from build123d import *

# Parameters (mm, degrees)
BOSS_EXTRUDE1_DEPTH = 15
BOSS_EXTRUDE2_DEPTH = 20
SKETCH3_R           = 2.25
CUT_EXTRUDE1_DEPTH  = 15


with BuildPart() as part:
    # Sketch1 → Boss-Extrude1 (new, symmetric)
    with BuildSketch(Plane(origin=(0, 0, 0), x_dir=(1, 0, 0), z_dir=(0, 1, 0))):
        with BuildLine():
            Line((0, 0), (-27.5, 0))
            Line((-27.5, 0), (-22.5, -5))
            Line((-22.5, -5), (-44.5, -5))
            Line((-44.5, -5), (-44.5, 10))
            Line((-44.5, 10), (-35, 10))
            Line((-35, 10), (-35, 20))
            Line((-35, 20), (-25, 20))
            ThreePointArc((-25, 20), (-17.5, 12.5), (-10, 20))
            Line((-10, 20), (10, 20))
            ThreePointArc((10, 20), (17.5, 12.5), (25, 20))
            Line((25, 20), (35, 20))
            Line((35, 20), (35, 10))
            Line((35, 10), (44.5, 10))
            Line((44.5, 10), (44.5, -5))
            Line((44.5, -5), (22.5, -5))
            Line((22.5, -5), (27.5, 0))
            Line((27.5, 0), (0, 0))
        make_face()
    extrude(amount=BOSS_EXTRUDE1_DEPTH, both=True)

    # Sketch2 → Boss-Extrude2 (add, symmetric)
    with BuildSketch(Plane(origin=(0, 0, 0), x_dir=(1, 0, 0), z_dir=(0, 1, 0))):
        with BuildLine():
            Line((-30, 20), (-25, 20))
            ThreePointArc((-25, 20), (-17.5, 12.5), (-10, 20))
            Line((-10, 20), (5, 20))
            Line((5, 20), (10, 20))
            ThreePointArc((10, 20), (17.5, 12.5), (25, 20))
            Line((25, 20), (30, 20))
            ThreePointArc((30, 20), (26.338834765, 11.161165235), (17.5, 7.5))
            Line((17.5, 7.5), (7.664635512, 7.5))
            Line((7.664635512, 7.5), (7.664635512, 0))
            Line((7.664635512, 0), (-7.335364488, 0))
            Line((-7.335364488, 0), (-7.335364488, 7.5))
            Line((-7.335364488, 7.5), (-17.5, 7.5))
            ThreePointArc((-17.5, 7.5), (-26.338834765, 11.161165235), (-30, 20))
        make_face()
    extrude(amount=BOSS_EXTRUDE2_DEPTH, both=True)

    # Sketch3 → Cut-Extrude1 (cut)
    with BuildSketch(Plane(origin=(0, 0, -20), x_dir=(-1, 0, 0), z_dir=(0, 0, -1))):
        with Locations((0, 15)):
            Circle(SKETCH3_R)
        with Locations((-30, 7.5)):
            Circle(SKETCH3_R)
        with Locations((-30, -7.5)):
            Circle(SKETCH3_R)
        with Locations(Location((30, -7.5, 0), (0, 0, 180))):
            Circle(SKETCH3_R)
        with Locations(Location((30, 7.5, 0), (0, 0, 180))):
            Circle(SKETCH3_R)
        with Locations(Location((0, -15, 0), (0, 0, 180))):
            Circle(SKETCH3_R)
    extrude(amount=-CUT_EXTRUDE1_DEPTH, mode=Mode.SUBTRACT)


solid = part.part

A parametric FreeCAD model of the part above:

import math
import FreeCAD as App
import Part
import Sketcher

V = App.Vector

doc = App.newDocument("Part")
body = doc.addObject("PartDesign::Body", "Body")

# Sketch on XZ plane
sketch1 = doc.addObject("Sketcher::SketchObject", "Sketch")
body.addObject(sketch1)
sketch1.AttachmentSupport = (doc.XZ_Plane, [""])
sketch1.MapMode = "FlatFace"
sketch1.addGeometry([
    Part.LineSegment(V(-22, 5, 0), V(-28, 0, 0)),  # 0
    Part.LineSegment(V(-28, 0, 0), V(28, 0, 0)),  # 1
    Part.LineSegment(V(28, 0, 0), V(22, 5, 0)),  # 2
    Part.LineSegment(V(22, 5, 0), V(44, 5, 0)),  # 3
    Part.LineSegment(V(44, 5, 0), V(44, -10, 0)),  # 4
    Part.LineSegment(V(44, -10, 0), V(35, -10, 0)),  # 5
    Part.LineSegment(V(35, -10, 0), V(35, -20, 0)),  # 6
    Part.LineSegment(V(35, -20, 0), V(25, -20, 0)),  # 7
    Part.ArcOfCircle(Part.Circle(V(18, -20, 0), V(0, 0, 1), 8), math.radians(0), math.radians(180)),  # 8
    Part.LineSegment(V(10, -20, 0), V(-10, -20, 0)),  # 9
    Part.ArcOfCircle(Part.Circle(V(-18, -20, 0), V(0, 0, 1), 8), math.radians(0), math.radians(180)),  # 10
    Part.LineSegment(V(-25, -20, 0), V(-35, -20, 0)),  # 11
    Part.LineSegment(V(-35, -20, 0), V(-35, -10, 0)),  # 12
    Part.LineSegment(V(-35, -10, 0), V(-44, -10, 0)),  # 13
    Part.LineSegment(V(-44, -10, 0), V(-44, 5, 0)),  # 14
    Part.LineSegment(V(-44, 5, 0), V(-22, 5, 0)),  # 15
], False)
sketch1.addConstraint([
    Sketcher.Constraint("Coincident", 0, 2, 1, 1),
    Sketcher.Constraint("Coincident", 1, 2, 2, 1),
    Sketcher.Constraint("Coincident", 2, 2, 3, 1),
    Sketcher.Constraint("Coincident", 3, 2, 4, 1),
    Sketcher.Constraint("Coincident", 4, 2, 5, 1),
    Sketcher.Constraint("Coincident", 5, 2, 6, 1),
    Sketcher.Constraint("Coincident", 6, 2, 7, 1),
    Sketcher.Constraint("Coincident", 7, 2, 8, 1),
    Sketcher.Constraint("Coincident", 8, 2, 9, 1),
    Sketcher.Constraint("Coincident", 9, 2, 10, 1),
    Sketcher.Constraint("Coincident", 10, 2, 11, 1),
    Sketcher.Constraint("Coincident", 11, 2, 12, 1),
    Sketcher.Constraint("Coincident", 12, 2, 13, 1),
    Sketcher.Constraint("Coincident", 13, 2, 14, 1),
    Sketcher.Constraint("Coincident", 14, 2, 15, 1),
    Sketcher.Constraint("Coincident", 15, 2, 0, 1),
    Sketcher.Constraint("Horizontal", 1),
    Sketcher.Constraint("Horizontal", 3),
    Sketcher.Constraint("Vertical", 4),
    Sketcher.Constraint("Horizontal", 5),
    Sketcher.Constraint("Vertical", 6),
    Sketcher.Constraint("Horizontal", 7),
    Sketcher.Constraint("Horizontal", 9),
    Sketcher.Constraint("Horizontal", 11),
    Sketcher.Constraint("Vertical", 12),
    Sketcher.Constraint("Horizontal", 13),
    Sketcher.Constraint("Vertical", 14),
    Sketcher.Constraint("Horizontal", 15),
    Sketcher.Constraint("Equal", 8, 10),
    Sketcher.Constraint("Symmetric", 0, 2, 1, 2, -1, 1),
    Sketcher.Constraint("Symmetric", 8, 3, 10, 3, -2),
    Sketcher.Constraint("Symmetric", 6, 2, 11, 2, -2),
    Sketcher.Constraint("Symmetric", 4, 2, 13, 2, -2),
    Sketcher.Constraint("Symmetric", 2, 2, 15, 2, -2),
    Sketcher.Constraint("Perpendicular", 0, 2),
    Sketcher.Constraint("Horizontal", 10, 3, 6, 2),
    Sketcher.Constraint("Horizontal", 7, 2, 8, 2),
    Sketcher.Constraint("Equal", 11, 6),
    Sketcher.Constraint("Radius", 8, 7.5),
    Sketcher.Constraint("DistanceX", 1, 1, 1, 2, 55.0),
    Sketcher.Constraint("DistanceX", 3, 1, 3, 2, 22.0),
    Sketcher.Constraint("DistanceX", 7, 2, 7, 1, 10.0),
    Sketcher.Constraint("DistanceX", 9, 2, 9, 1, 20.0),
    Sketcher.Constraint("DistanceY", 4, 2, 4, 1, 15.0),
    Sketcher.Constraint("DistanceX", 5, 2, 5, 1, 9.5),
])
pad1 = doc.addObject("PartDesign::Pad", "Pad")
body.addObject(pad1)
pad1.Profile = sketch1
pad1.Length = 30
pad1.Midplane = True

# Sketch on XZ plane
sketch2 = doc.addObject("Sketcher::SketchObject", "Sketch001")
body.addObject(sketch2)
sketch2.AttachmentSupport = (doc.XZ_Plane, [""])
sketch2.MapMode = "FlatFace"
sketch2.addGeometry([
    Part.LineSegment(V(-25, -20, 0), V(-30, -20, 0)),  # 0
    Part.ArcOfCircle(Part.Circle(V(-18, -20, 0), V(0, 0, 1), 12), math.radians(90), math.radians(180)),  # 1
    Part.LineSegment(V(-18, -8, 0), V(-7, -8, 0)),  # 2
    Part.LineSegment(V(-7, -8, 0), V(-7, 0, 0)),  # 3
    Part.LineSegment(V(-7, 0, 0), V(8, 0, 0)),  # 4
    Part.LineSegment(V(8, 0, 0), V(8, -8, 0)),  # 5
    Part.LineSegment(V(8, -8, 0), V(18, -8, 0)),  # 6
    Part.ArcOfCircle(Part.Circle(V(18, -20, 0), V(0, 0, 1), 12), math.radians(0), math.radians(90)),  # 7
    Part.LineSegment(V(30, -20, 0), V(25, -20, 0)),  # 8
    Part.ArcOfCircle(Part.Circle(V(18, -20, 0), V(0, 0, 1), 8), math.radians(0), math.radians(180)),  # 9
    Part.LineSegment(V(10, -20, 0), V(-10, -20, 0)),  # 10
    Part.ArcOfCircle(Part.Circle(V(-18, -20, 0), V(0, 0, 1), 8), math.radians(0), math.radians(180)),  # 11
], False)
sketch2.addConstraint([
    Sketcher.Constraint("Coincident", 0, 2, 1, 2),
    Sketcher.Constraint("Tangent", 1, 1, 2, 1),
    Sketcher.Constraint("Coincident", 2, 2, 3, 1),
    Sketcher.Constraint("Coincident", 3, 2, 4, 1),
    Sketcher.Constraint("Coincident", 4, 2, 5, 1),
    Sketcher.Constraint("Coincident", 5, 2, 6, 1),
    Sketcher.Constraint("Tangent", 6, 2, 7, 2),
    Sketcher.Constraint("Coincident", 7, 1, 8, 1),
    Sketcher.Constraint("Coincident", 8, 2, 9, 1),
    Sketcher.Constraint("Coincident", 9, 2, 10, 1),
    Sketcher.Constraint("Coincident", 10, 2, 11, 1),
    Sketcher.Constraint("Coincident", 11, 2, 0, 1),
    Sketcher.Constraint("Horizontal", 0),
    Sketcher.Constraint("Horizontal", 2),
    Sketcher.Constraint("Vertical", 3),
    Sketcher.Constraint("Horizontal", 4),
    Sketcher.Constraint("Vertical", 5),
    Sketcher.Constraint("Horizontal", 6),
    Sketcher.Constraint("Horizontal", 8),
    Sketcher.Constraint("Horizontal", 10),
    Sketcher.Constraint("Coincident", 9, 3, 7, 3),
    Sketcher.Constraint("Coincident", 11, 3, 1, 3),
    Sketcher.Constraint("Equal", 1, 7),
    Sketcher.Constraint("Equal", 9, 11),
    Sketcher.Constraint("Symmetric", 1, 3, 7, 3, -2),
    Sketcher.Constraint("PointOnObject", 3, 2, -1),
    Sketcher.Constraint("Horizontal", 11, 3, 0, 2),
    Sketcher.Constraint("Horizontal", 0, 2, 7, 1),
    Sketcher.Constraint("Horizontal", 8, 2, 9, 2),
    Sketcher.Constraint("Radius", 1, 12.5),
    Sketcher.Constraint("Radius", 9, 7.5),
    Sketcher.Constraint("DistanceX", 4, 1, 4, 2, 15.0),
    Sketcher.Constraint("DistanceX", 10, 2, 10, 1, 20.0),
    Sketcher.Constraint("DistanceY", 3, 1, 3, 2, 7.5),
    Sketcher.Constraint("DistanceX", 2, 1, 2, 2, 10.164636),
])
pad2 = doc.addObject("PartDesign::Pad", "Pad001")
body.addObject(pad2)
pad2.Profile = sketch2
pad2.Length = 40
pad2.Midplane = True

# Sketch on XY plane
sketch3 = doc.addObject("Sketcher::SketchObject", "Sketch002")
body.addObject(sketch3)
sketch3.AttachmentSupport = (doc.XY_Plane, [""])
sketch3.MapMode = "FlatFace"
sketch3.AttachmentOffset = App.Placement(V(0, 0, -20), App.Rotation())
sketch3.addGeometry([
    Part.Circle(V(0, 15, 0), V(0, 0, 1), 2.2),  # 0
    Part.Circle(V(30, 7.5, 0), V(0, 0, 1), 2.2),  # 1
    Part.Circle(V(30, -7.5, 0), V(0, 0, 1), 2.2),  # 2
    Part.Circle(V(-30, -7.5, 0), V(0, 0, 1), 2.2),  # 3
    Part.Circle(V(-30, 7.5, 0), V(0, 0, 1), 2.2),  # 4
    Part.Circle(V(0, -15, 0), V(0, 0, 1), 2.2),  # 5
], False)
sketch3.addConstraint([
    Sketcher.Constraint("Equal", 0, 1),
    Sketcher.Constraint("Equal", 1, 2),
    Sketcher.Constraint("Equal", 2, 3),
    Sketcher.Constraint("Equal", 3, 4),
    Sketcher.Constraint("Equal", 4, 5),
    Sketcher.Constraint("Symmetric", 1, 3, 3, 3, -1, 1),
    Sketcher.Constraint("Symmetric", 2, 3, 4, 3, -1, 1),
    Sketcher.Constraint("Symmetric", 0, 3, 5, 3, -1, 1),
    Sketcher.Constraint("Symmetric", 2, 3, 3, 3, -2),
    Sketcher.Constraint("PointOnObject", 0, 3, -2),
    Sketcher.Constraint("Diameter", 0, 4.5),
    Sketcher.Constraint("DistanceY", -1, 1, 0, 3, 15.0),
    Sketcher.Constraint("DistanceX", -1, 1, 1, 3, 30.0),
    Sketcher.Constraint("DistanceY", 2, 3, 1, 3, 15.0),
])
pocket1 = doc.addObject("PartDesign::Pocket", "Pocket")
body.addObject(pocket1)
pocket1.Profile = sketch3
pocket1.Length = 15
pocket1.Reversed = True

doc.recompute()
